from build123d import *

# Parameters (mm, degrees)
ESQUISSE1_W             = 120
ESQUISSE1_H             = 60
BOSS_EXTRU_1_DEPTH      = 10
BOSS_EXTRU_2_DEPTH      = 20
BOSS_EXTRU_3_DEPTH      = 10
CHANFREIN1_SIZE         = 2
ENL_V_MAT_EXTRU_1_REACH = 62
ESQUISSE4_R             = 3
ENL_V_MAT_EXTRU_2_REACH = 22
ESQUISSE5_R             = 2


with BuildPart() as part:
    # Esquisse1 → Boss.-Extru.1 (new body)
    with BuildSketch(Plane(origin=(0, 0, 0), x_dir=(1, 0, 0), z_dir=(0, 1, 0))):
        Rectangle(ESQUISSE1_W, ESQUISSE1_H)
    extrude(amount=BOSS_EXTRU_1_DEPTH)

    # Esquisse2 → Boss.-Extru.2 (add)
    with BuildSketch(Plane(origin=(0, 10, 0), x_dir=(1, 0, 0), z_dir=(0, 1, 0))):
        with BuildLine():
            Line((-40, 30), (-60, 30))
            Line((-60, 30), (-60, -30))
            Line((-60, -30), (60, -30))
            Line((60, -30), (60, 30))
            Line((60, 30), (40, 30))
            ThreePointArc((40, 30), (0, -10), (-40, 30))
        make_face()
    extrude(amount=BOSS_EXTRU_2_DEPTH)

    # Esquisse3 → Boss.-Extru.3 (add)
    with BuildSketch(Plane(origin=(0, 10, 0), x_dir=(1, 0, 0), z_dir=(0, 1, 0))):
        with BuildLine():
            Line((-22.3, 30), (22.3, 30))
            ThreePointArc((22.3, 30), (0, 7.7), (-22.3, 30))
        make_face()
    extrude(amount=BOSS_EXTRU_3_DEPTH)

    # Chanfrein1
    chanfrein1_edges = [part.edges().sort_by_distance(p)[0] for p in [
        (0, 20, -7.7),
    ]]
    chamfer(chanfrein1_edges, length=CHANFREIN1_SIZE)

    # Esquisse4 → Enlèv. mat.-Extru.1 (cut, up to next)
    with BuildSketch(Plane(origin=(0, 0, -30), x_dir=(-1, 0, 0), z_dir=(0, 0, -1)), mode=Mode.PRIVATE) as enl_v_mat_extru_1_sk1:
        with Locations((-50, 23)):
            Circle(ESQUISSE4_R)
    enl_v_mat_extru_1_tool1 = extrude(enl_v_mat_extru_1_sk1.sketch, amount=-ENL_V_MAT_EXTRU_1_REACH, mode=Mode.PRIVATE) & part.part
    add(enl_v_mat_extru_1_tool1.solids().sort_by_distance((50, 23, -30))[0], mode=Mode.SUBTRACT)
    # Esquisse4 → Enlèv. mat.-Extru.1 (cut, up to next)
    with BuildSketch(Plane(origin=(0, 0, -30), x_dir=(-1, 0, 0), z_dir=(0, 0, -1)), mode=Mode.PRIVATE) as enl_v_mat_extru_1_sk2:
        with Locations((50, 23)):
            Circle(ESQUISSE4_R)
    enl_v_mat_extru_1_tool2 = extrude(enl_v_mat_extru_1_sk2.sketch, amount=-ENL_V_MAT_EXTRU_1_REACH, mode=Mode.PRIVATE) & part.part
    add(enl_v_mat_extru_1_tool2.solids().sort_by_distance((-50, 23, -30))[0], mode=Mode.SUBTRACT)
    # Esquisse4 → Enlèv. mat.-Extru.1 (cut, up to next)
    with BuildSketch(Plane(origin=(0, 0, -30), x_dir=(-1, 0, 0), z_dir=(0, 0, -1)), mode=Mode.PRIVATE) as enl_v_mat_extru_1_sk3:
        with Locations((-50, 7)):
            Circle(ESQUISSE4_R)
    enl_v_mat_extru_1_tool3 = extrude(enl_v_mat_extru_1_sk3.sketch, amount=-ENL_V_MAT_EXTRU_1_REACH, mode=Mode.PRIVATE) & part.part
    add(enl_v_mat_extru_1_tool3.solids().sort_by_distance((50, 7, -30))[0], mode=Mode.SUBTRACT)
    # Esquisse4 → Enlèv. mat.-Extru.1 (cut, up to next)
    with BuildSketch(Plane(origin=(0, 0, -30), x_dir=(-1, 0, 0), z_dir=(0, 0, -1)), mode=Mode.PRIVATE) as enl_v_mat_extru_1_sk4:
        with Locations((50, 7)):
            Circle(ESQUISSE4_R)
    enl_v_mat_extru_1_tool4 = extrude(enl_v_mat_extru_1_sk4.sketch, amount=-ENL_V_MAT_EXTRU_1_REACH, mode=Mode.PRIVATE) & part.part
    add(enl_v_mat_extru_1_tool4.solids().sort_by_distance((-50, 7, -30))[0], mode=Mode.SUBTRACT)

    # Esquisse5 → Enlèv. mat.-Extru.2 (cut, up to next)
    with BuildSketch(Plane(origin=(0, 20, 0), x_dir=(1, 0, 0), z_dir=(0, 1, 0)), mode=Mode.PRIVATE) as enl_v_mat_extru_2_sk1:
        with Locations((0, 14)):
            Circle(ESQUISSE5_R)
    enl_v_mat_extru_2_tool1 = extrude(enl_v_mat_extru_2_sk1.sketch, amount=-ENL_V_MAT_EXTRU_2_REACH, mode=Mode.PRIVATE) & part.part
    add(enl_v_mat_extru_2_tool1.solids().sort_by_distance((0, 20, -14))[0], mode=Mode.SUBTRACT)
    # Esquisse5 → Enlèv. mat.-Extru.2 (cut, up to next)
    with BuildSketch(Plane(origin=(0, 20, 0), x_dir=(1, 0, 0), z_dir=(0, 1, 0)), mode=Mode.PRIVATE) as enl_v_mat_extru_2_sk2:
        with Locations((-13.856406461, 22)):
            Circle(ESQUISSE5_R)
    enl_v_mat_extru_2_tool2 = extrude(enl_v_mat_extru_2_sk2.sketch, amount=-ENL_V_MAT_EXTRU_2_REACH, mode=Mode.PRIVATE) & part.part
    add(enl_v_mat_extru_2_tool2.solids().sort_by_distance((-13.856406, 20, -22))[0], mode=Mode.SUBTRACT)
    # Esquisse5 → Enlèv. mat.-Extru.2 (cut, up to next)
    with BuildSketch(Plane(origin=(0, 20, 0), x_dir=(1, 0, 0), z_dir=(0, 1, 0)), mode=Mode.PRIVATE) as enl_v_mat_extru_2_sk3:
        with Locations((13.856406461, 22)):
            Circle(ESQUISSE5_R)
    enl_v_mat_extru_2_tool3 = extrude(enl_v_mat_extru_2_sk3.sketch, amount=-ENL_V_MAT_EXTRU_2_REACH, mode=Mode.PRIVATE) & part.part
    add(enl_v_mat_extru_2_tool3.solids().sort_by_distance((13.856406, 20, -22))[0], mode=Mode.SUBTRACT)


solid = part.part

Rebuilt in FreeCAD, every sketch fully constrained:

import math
import FreeCAD as App
import Part
import Sketcher
from FreeCAD import Vector


def edges_at(feature, points):
    """Names of the edges that pass closest to the given points."""
    edges = feature.Shape.Edges
    near = lambda p: min(range(len(edges)), key=lambda i: edges[i].distToShape(Part.Vertex(*p))[0])
    return sorted({f"Edge{near(p) + 1}" for p in points})

doc = App.newDocument("Part")
body = doc.addObject("PartDesign::Body", "Body")

sketch1 = doc.addObject("Sketcher::SketchObject", "Sketch")
body.addObject(sketch1)
sketch1.AttachmentSupport = (doc.XZ_Plane, [""])
sketch1.MapMode = "FlatFace"
sketch1.addGeometry([
    Part.LineSegment(Vector(-60, -30, 0), Vector(-60, 30, 0)),
    Part.LineSegment(Vector(-60, 30, 0), Vector(60, 30, 0)),
    Part.LineSegment(Vector(60, 30, 0), Vector(60, -30, 0)),
    Part.LineSegment(Vector(60, -30, 0), Vector(-60, -30, 0)),
], False)
sketch1.addConstraint([
    Sketcher.Constraint("Coincident", 0, 2, 1, 1),
    Sketcher.Constraint("Coincident", 1, 2, 2, 1),
    Sketcher.Constraint("Coincident", 2, 2, 3, 1),
    Sketcher.Constraint("Coincident", 3, 2, 0, 1),
    Sketcher.Constraint("Vertical", 0),
    Sketcher.Constraint("Horizontal", 1),
    Sketcher.Constraint("Vertical", 2),
    Sketcher.Constraint("Horizontal", 3),
    Sketcher.Constraint("Symmetric", 0, 2, 2, 2, -1, 1),
    Sketcher.Constraint("DistanceX", 1, 1, 1, 2, 120.0),
    Sketcher.Constraint("DistanceY", 0, 1, 0, 2, 60.0),
])
pad1 = doc.addObject("PartDesign::Pad", "Pad")
body.addObject(pad1)
pad1.Profile = sketch1
pad1.Length = 10
pad1.Reversed = True

sketch2 = doc.addObject("Sketcher::SketchObject", "Sketch001")
body.addObject(sketch2)
sketch2.AttachmentSupport = (doc.XZ_Plane, [""])
sketch2.MapMode = "FlatFace"
sketch2.AttachmentOffset = App.Placement(Vector(0, 0, -10), App.Rotation())
sketch2.addGeometry([
    Part.LineSegment(Vector(-40, -30, 0), Vector(-60, -30, 0)),
    Part.LineSegment(Vector(-60, -30, 0), Vector(-60, 30, 0)),
    Part.LineSegment(Vector(-60, 30, 0), Vector(60, 30, 0)),
    Part.LineSegment(Vector(60, 30, 0), Vector(60, -30, 0)),
    Part.LineSegment(Vector(60, -30, 0), Vector(40, -30, 0)),
    Part.ArcOfCircle(Part.Circle(Vector(0, -30, 0), Vector(0, 0, 1), 40), math.radians(0), math.radians(180)),
], False)
sketch2.addConstraint([
    Sketcher.Constraint("Coincident", 0, 2, 1, 1),
    Sketcher.Constraint("Coincident", 1, 2, 2, 1),
    Sketcher.Constraint("Coincident", 2, 2, 3, 1),
    Sketcher.Constraint("Coincident", 3, 2, 4, 1),
    Sketcher.Constraint("Coincident", 4, 2, 5, 1),
    Sketcher.Constraint("Coincident", 5, 2, 0, 1),
    Sketcher.Constraint("Horizontal", 0),
    Sketcher.Constraint("Vertical", 1),
    Sketcher.Constraint("Horizontal", 2),
    Sketcher.Constraint("Vertical", 3),
    Sketcher.Constraint("Horizontal", 4),
    Sketcher.Constraint("Symmetric", 0, 2, 2, 2, -1, 1),
    Sketcher.Constraint("Symmetric", 4, 2, 5, 2, -2),
    Sketcher.Constraint("Horizontal", 5, 3, 0, 2),
    Sketcher.Constraint("Radius", 5, 40.0),
    Sketcher.Constraint("DistanceX", 0, 2, 0, 1, 20.0),
    Sketcher.Constraint("DistanceY", 1, 1, 1, 2, 60.0),
])
pad2 = doc.addObject("PartDesign::Pad", "Pad001")
body.addObject(pad2)
pad2.Profile = sketch2
pad2.Length = 20
pad2.Reversed = True

sketch3 = doc.addObject("Sketcher::SketchObject", "Sketch002")
body.addObject(sketch3)
sketch3.AttachmentSupport = (doc.XZ_Plane, [""])
sketch3.MapMode = "FlatFace"
sketch3.AttachmentOffset = App.Placement(Vector(0, 0, -10), App.Rotation())
sketch3.addGeometry([
    Part.LineSegment(Vector(22, -30, 0), Vector(-22, -30, 0)),
    Part.ArcOfCircle(Part.Circle(Vector(0, -30, 0), Vector(0, 0, 1), 22), math.radians(0), math.radians(180)),
], False)
sketch3.addConstraint([
    Sketcher.Constraint("Coincident", 0, 1, 1, 1),
    Sketcher.Constraint("Coincident", 1, 2, 0, 2),
    Sketcher.Constraint("Horizontal", 0),
    Sketcher.Constraint("PointOnObject", 1, 3, -2),
    Sketcher.Constraint("Horizontal", 1, 3, 0, 1),
    Sketcher.Constraint("Radius", 1, 22.3),
    Sketcher.Constraint("DistanceY", 1, 3, -1, 1, 30.0),
])
pad3 = doc.addObject("PartDesign::Pad", "Pad002")
body.addObject(pad3)
pad3.Profile = sketch3
pad3.Length = 10
pad3.Reversed = True
doc.recompute()

chamfer = doc.addObject("PartDesign::Chamfer", "Chamfer")
body.addObject(chamfer)
chamfer.Base = (pad3, edges_at(pad3, [(0, 20, -7.7)]))
chamfer.Size = 2

sketch4 = doc.addObject("Sketcher::SketchObject", "Sketch003")
body.addObject(sketch4)
sketch4.AttachmentSupport = (doc.XY_Plane, [""])
sketch4.MapMode = "FlatFace"
sketch4.AttachmentOffset = App.Placement(Vector(0, 0, -30), App.Rotation())
sketch4.addGeometry(Part.Circle(Vector(50, 23, 0), Vector(0, 0, 1), 3), False)
sketch4.addConstraint([
    Sketcher.Constraint("Diameter", 0, 6.0),
    Sketcher.Constraint("DistanceX", -1, 1, 0, 3, 50.0),
    Sketcher.Constraint("DistanceY", -1, 1, 0, 3, 23.0),
])
pocket1 = doc.addObject("PartDesign::Pocket", "Pocket")
body.addObject(pocket1)
pocket1.Profile = sketch4
pocket1.Type = "UpToFirst"
pocket1.Reversed = True

sketch5 = doc.addObject("Sketcher::SketchObject", "Sketch004")
body.addObject(sketch5)
sketch5.AttachmentSupport = (doc.XY_Plane, [""])
sketch5.MapMode = "FlatFace"
sketch5.AttachmentOffset = App.Placement(Vector(0, 0, -30), App.Rotation())
sketch5.addGeometry(Part.Circle(Vector(-50, 23, 0), Vector(0, 0, 1), 3), False)
sketch5.addConstraint([
    Sketcher.Constraint("Diameter", 0, 6.0),
    Sketcher.Constraint("DistanceX", 0, 3, -1, 1, 50.0),
    Sketcher.Constraint("DistanceY", -1, 1, 0, 3, 23.0),
])
pocket2 = doc.addObject("PartDesign::Pocket", "Pocket001")
body.addObject(pocket2)
pocket2.Profile = sketch5
pocket2.Type = "UpToFirst"
pocket2.Reversed = True

sketch6 = doc.addObject("Sketcher::SketchObject", "Sketch005")
body.addObject(sketch6)
sketch6.AttachmentSupport = (doc.XY_Plane, [""])
sketch6.MapMode = "FlatFace"
sketch6.AttachmentOffset = App.Placement(Vector(0, 0, -30), App.Rotation())
sketch6.addGeometry(Part.Circle(Vector(50, 7, 0), Vector(0, 0, 1), 3), False)
sketch6.addConstraint([
    Sketcher.Constraint("Diameter", 0, 6.0),
    Sketcher.Constraint("DistanceX", -1, 1, 0, 3, 50.0),
    Sketcher.Constraint("DistanceY", -1, 1, 0, 3, 7.0),
])
pocket3 = doc.addObject("PartDesign::Pocket", "Pocket002")
body.addObject(pocket3)
pocket3.Profile = sketch6
pocket3.Type = "UpToFirst"
pocket3.Reversed = True

sketch7 = doc.addObject("Sketcher::SketchObject", "Sketch006")
body.addObject(sketch7)
sketch7.AttachmentSupport = (doc.XY_Plane, [""])
sketch7.MapMode = "FlatFace"
sketch7.AttachmentOffset = App.Placement(Vector(0, 0, -30), App.Rotation())
sketch7.addGeometry(Part.Circle(Vector(-50, 7, 0), Vector(0, 0, 1), 3), False)
sketch7.addConstraint([
    Sketcher.Constraint("Diameter", 0, 6.0),
    Sketcher.Constraint("DistanceX", 0, 3, -1, 1, 50.0),
    Sketcher.Constraint("DistanceY", -1, 1, 0, 3, 7.0),
])
pocket4 = doc.addObject("PartDesign::Pocket", "Pocket003")
body.addObject(pocket4)
pocket4.Profile = sketch7
pocket4.Type = "UpToFirst"
pocket4.Reversed = True

sketch8 = doc.addObject("Sketcher::SketchObject", "Sketch007")
body.addObject(sketch8)
sketch8.AttachmentSupport = (doc.XZ_Plane, [""])
sketch8.MapMode = "FlatFace"
sketch8.AttachmentOffset = App.Placement(Vector(0, 0, -20), App.Rotation())
sketch8.addGeometry(Part.Circle(Vector(0, -14, 0), Vector(0, 0, 1), 2), False)
sketch8.addConstraint([
    Sketcher.Constraint("PointOnObject", 0, 3, -2),
    Sketcher.Constraint("Diameter", 0, 4.0),
    Sketcher.Constraint("DistanceY", 0, 3, -1, 1, 14.0),
])
pocket5 = doc.addObject("PartDesign::Pocket", "Pocket004")
body.addObject(pocket5)
pocket5.Profile = sketch8
pocket5.Type = "UpToFirst"
pocket5.Reversed = True

sketch9 = doc.addObject("Sketcher::SketchObject", "Sketch008")
body.addObject(sketch9)
sketch9.AttachmentSupport = (doc.XZ_Plane, [""])
sketch9.MapMode = "FlatFace"
sketch9.AttachmentOffset = App.Placement(Vector(0, 0, -20), App.Rotation())
sketch9.addGeometry(Part.Circle(Vector(-13.9, -22, 0), Vector(0, 0, 1), 2), False)
sketch9.addConstraint([
    Sketcher.Constraint("Diameter", 0, 4.0),
    Sketcher.Constraint("DistanceY", 0, 3, -1, 1, 22.0),
    Sketcher.Constraint("DistanceX", 0, 3, -1, 1, 13.856406),
])
pocket6 = doc.addObject("PartDesign::Pocket", "Pocket005")
body.addObject(pocket6)
pocket6.Profile = sketch9
pocket6.Type = "UpToFirst"
pocket6.Reversed = True

sketch10 = doc.addObject("Sketcher::SketchObject", "Sketch009")
body.addObject(sketch10)
sketch10.AttachmentSupport = (doc.XZ_Plane, [""])
sketch10.MapMode = "FlatFace"
sketch10.AttachmentOffset = App.Placement(Vector(0, 0, -20), App.Rotation())
sketch10.addGeometry(Part.Circle(Vector(13.9, -22, 0), Vector(0, 0, 1), 2), False)
sketch10.addConstraint([
    Sketcher.Constraint("Diameter", 0, 4.0),
    Sketcher.Constraint("DistanceY", 0, 3, -1, 1, 22.0),
    Sketcher.Constraint("DistanceX", -1, 1, 0, 3, 13.856406),
])
pocket7 = doc.addObject("PartDesign::Pocket", "Pocket006")
body.addObject(pocket7)
pocket7.Profile = sketch10
pocket7.Type = "UpToFirst"
pocket7.Reversed = True

doc.recompute()
